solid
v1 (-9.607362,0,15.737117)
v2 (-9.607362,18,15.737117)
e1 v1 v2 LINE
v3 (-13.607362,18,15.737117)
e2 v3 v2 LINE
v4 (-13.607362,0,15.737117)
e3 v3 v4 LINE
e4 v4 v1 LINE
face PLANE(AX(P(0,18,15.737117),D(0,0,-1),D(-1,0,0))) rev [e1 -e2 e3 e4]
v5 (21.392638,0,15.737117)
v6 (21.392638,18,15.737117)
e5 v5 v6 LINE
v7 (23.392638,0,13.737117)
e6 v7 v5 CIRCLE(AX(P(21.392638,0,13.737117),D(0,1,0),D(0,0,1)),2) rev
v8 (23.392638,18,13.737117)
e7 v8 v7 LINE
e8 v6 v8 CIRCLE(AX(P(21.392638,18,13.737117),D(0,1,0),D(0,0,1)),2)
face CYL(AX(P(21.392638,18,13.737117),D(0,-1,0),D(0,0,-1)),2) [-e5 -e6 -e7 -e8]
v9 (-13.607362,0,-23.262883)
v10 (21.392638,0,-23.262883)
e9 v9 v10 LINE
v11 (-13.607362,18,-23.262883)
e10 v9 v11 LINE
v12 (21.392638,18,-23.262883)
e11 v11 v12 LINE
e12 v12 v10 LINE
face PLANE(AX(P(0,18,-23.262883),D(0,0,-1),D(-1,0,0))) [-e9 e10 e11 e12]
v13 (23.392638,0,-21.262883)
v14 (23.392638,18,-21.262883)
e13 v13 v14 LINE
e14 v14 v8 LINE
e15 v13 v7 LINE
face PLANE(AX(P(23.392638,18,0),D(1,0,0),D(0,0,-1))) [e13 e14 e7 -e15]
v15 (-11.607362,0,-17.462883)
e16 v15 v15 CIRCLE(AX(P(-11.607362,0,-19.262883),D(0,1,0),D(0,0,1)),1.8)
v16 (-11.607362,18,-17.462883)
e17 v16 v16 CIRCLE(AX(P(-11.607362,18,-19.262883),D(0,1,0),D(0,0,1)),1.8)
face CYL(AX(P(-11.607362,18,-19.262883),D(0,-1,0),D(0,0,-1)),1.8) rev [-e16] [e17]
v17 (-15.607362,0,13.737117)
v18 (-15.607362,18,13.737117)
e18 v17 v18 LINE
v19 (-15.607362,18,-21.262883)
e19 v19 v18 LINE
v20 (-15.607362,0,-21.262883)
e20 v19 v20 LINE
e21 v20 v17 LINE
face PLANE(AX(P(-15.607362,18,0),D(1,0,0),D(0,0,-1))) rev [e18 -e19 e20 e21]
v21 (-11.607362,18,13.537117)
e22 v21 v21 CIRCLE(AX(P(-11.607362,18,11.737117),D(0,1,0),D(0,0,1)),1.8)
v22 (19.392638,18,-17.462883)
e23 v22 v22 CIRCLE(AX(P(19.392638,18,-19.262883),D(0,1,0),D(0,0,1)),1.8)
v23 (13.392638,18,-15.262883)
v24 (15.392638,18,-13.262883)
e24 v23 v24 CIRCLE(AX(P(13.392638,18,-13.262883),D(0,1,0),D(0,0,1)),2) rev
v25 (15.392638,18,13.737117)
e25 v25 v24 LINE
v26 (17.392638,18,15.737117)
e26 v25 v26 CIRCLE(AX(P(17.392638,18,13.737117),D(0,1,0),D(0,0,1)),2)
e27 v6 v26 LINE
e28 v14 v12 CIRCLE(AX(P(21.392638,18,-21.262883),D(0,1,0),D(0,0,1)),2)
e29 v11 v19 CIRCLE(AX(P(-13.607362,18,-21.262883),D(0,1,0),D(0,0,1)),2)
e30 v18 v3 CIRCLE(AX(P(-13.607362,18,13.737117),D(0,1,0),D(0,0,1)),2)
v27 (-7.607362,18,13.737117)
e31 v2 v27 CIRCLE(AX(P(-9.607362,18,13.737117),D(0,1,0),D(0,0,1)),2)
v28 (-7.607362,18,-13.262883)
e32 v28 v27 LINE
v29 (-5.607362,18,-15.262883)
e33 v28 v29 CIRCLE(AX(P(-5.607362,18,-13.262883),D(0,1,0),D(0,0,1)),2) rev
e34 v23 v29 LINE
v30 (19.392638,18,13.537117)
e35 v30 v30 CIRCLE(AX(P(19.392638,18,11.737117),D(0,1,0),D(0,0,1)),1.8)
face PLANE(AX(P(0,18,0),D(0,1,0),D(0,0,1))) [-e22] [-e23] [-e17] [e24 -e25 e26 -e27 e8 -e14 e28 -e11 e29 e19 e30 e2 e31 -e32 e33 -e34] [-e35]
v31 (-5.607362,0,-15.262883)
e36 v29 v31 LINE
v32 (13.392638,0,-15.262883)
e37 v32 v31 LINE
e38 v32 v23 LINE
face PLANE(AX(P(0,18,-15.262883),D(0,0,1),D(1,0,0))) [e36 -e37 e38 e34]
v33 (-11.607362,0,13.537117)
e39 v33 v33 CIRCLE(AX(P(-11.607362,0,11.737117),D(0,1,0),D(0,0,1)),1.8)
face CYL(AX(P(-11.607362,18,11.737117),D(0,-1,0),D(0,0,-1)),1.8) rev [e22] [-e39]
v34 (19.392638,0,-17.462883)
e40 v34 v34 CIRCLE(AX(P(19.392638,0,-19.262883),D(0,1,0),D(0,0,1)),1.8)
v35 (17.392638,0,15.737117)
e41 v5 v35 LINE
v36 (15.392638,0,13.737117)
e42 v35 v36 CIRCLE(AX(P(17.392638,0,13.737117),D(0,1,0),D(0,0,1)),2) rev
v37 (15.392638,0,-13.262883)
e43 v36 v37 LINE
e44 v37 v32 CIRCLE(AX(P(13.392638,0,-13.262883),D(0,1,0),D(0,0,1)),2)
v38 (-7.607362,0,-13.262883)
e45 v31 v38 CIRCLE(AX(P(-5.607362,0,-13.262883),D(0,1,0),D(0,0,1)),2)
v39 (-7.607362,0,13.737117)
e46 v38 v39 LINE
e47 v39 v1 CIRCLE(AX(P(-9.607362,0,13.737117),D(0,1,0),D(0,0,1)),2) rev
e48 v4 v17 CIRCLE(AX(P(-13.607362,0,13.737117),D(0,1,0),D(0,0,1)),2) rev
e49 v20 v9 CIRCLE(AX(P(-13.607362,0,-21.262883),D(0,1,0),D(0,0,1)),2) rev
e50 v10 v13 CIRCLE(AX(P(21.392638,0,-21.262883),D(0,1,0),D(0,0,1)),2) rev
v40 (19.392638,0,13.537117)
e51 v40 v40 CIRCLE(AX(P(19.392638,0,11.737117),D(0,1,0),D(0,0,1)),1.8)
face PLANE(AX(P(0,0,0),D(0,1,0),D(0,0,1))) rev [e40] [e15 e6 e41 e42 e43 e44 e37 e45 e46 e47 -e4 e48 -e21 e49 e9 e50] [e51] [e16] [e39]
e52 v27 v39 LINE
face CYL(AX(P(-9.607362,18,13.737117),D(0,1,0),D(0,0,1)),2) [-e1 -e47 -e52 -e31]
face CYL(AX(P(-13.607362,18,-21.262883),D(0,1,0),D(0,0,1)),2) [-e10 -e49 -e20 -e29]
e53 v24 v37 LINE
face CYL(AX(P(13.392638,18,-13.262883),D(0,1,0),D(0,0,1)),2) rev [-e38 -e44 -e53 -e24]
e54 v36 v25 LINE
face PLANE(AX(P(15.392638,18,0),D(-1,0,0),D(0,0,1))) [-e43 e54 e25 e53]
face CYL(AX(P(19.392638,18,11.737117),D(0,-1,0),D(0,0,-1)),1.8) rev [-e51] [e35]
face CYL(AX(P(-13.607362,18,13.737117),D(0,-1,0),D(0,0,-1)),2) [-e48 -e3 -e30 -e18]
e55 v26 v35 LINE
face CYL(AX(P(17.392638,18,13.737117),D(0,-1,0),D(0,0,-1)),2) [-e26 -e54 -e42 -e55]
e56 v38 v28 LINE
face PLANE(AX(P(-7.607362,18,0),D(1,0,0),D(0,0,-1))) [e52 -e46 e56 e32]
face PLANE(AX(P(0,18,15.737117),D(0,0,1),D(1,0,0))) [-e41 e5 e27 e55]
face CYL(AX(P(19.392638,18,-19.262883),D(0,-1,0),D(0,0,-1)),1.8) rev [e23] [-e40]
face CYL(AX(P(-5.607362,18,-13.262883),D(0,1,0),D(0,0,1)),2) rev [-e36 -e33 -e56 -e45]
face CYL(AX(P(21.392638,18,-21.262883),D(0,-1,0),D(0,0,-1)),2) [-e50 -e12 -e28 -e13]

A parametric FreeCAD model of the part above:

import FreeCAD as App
import Part
import Sketcher
Q = App.Units.Quantity


def edges_at(feature, points):
    """Names of the edges that pass closest to the given points."""
    edges = feature.Shape.Edges
    near = lambda p: min(range(len(edges)), key=lambda i: edges[i].distToShape(Part.Vertex(*p))[0])
    return sorted({f"Edge{near(p) + 1}" for p in points})

doc = App.newDocument("Part")
body = doc.addObject("PartDesign::Body", "Body")

sketch1 = doc.addObject("Sketcher::SketchObject", "Sketch")
body.addObject(sketch1)
sketch1.AttachmentSupport = (doc.XZ_Plane, [""])
sketch1.MapMode = "FlatFace"
sketch1.addGeometry(Part.LineSegment(App.Vector(-15.6, -23.3, 0), App.Vector(-15.6, 15.7, 0)), False)
sketch1.addGeometry(Part.LineSegment(App.Vector(-15.6, 15.7, 0), App.Vector(-7.6, 15.7, 0)), False)
sketch1.addGeometry(Part.LineSegment(App.Vector(-7.6, 15.7, 0), App.Vector(-7.6, -15.3, 0)), False)
sketch1.addGeometry(Part.LineSegment(App.Vector(-7.6, -15.3, 0), App.Vector(15.4, -15.3, 0)), False)
sketch1.addGeometry(Part.LineSegment(App.Vector(15.4, -15.3, 0), App.Vector(15.4, 15.7, 0)), False)
sketch1.addGeometry(Part.LineSegment(App.Vector(15.4, 15.7, 0), App.Vector(23.4, 15.7, 0)), False)
sketch1.addGeometry(Part.LineSegment(App.Vector(23.4, 15.7, 0), App.Vector(23.4, -23.3, 0)), False)
sketch1.addGeometry(Part.LineSegment(App.Vector(23.4, -23.3, 0), App.Vector(-15.6, -23.3, 0)), False)
sketch1.addGeometry(Part.Circle(App.Vector(-11.6, 11.7, 0), App.Vector(0, 0, 1), 1.8), False)
sketch1.addGeometry(Part.Circle(App.Vector(19.4, 11.7, 0), App.Vector(0, 0, 1), 1.8), False)
sketch1.addGeometry(Part.Circle(App.Vector(-11.6, -19.3, 0), App.Vector(0, 0, 1), 1.8), False)
sketch1.addGeometry(Part.Circle(App.Vector(19.4, -19.3, 0), App.Vector(0, 0, 1), 1.8), False)
sketch1.addConstraint(Sketcher.Constraint("Coincident", 0, 2, 1, 1))
sketch1.addConstraint(Sketcher.Constraint("Coincident", 1, 2, 2, 1))
sketch1.addConstraint(Sketcher.Constraint("Coincident", 2, 2, 3, 1))
sketch1.addConstraint(Sketcher.Constraint("Coincident", 3, 2, 4, 1))
sketch1.addConstraint(Sketcher.Constraint("Coincident", 4, 2, 5, 1))
sketch1.addConstraint(Sketcher.Constraint("Coincident", 5, 2, 6, 1))
sketch1.addConstraint(Sketcher.Constraint("Coincident", 6, 2, 7, 1))
sketch1.addConstraint(Sketcher.Constraint("Coincident", 7, 2, 0, 1))
sketch1.addConstraint(Sketcher.Constraint("Vertical", 0))
sketch1.addConstraint(Sketcher.Constraint("Horizontal", 1))
sketch1.addConstraint(Sketcher.Constraint("Vertical", 2))
sketch1.addConstraint(Sketcher.Constraint("Horizontal", 3))
sketch1.addConstraint(Sketcher.Constraint("Vertical", 4))
sketch1.addConstraint(Sketcher.Constraint("Horizontal", 5))
sketch1.addConstraint(Sketcher.Constraint("Vertical", 6))
sketch1.addConstraint(Sketcher.Constraint("Horizontal", 7))
sketch1.addConstraint(Sketcher.Constraint("Equal", 8, 9))
sketch1.addConstraint(Sketcher.Constraint("Equal", 9, 10))
sketch1.addConstraint(Sketcher.Constraint("Equal", 10, 11))
sketch1.addConstraint(Sketcher.Constraint("Horizontal", 8, 3, 9, 3))
sketch1.addConstraint(Sketcher.Constraint("Horizontal", 10, 3, 11, 3))
sketch1.addConstraint(Sketcher.Constraint("Horizontal", 1, 2, 4, 2))
sketch1.addConstraint(Sketcher.Constraint("Vertical", 8, 3, 10, 3))
sketch1.addConstraint(Sketcher.Constraint("Vertical", 9, 3, 11, 3))
sketch1.addConstraint(Sketcher.Constraint("Equal", 1, 5))
sketch1.addConstraint(Sketcher.Constraint("Equal", 7, 0))
sketch1.addConstraint(Sketcher.Constraint("Diameter", 8, Q("3.6 mm")))
sketch1.addConstraint(Sketcher.Constraint("DistanceX", 1, 1, 1, 2, Q("8 mm")))
sketch1.addConstraint(Sketcher.Constraint("DistanceX", 3, 1, 3, 2, Q("23 mm")))
sketch1.addConstraint(Sketcher.Constraint("DistanceY", 2, 2, 2, 1, Q("31 mm")))
sketch1.addConstraint(Sketcher.Constraint("DistanceX", 8, 3, 9, 3, Q("31 mm")))
sketch1.addConstraint(Sketcher.Constraint("DistanceY", 10, 3, 8, 3, Q("31 mm")))
sketch1.addConstraint(Sketcher.Constraint("DistanceX", 0, 2, 8, 3, Q("4 mm")))
sketch1.addConstraint(Sketcher.Constraint("DistanceY", 8, 3, 0, 2, Q("4 mm")))
sketch1.addConstraint(Sketcher.Constraint("DistanceX", 8, 3, -1, 1, Q("11.607362 mm")))
sketch1.addConstraint(Sketcher.Constraint("DistanceY", -1, 1, 8, 3, Q("11.737117 mm")))
pad1 = doc.addObject("PartDesign::Pad", "Pad")
body.addObject(pad1)
pad1.Profile = sketch1
pad1.Length = 18
pad1.Reversed = True
doc.recompute()

fillet = doc.addObject("PartDesign::Fillet", "Fillet")
body.addObject(fillet)
fillet.Base = (pad1, edges_at(pad1, [
    (-15.607, 9, -23.263),
    (23.393, 9, -23.263),
    (23.393, 9, 15.737),
    (15.393, 9, 15.737),
    (15.393, 9, -15.263),
    (-7.607, 9, -15.263),
    (-7.607, 9, 15.737),
    (-15.607, 9, 15.737),
]))
fillet.Radius = 2

doc.recompute()
